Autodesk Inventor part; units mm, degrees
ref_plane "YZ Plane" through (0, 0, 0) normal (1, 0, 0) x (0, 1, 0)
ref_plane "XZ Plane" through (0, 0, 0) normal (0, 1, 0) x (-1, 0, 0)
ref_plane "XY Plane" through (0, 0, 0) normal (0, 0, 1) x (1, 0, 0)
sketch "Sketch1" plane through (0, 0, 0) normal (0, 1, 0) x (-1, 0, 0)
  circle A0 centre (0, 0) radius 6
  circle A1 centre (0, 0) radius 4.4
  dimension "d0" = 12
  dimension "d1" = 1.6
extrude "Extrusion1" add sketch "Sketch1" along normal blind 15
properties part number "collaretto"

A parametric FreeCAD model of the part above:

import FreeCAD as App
import Part
import Sketcher
Q = App.Units.Quantity

doc = App.newDocument("Part")
body = doc.addObject("PartDesign::Body", "Body")

sketch1 = body.newObject("Sketcher::SketchObject", "Sketch")
sketch1.AttachmentSupport = (doc.getObject("XZ_Plane"), [""])
sketch1.MapMode = "FlatFace"
sketch1.addGeometry([
    Part.Circle(App.Vector(0, 0, 0), App.Vector(0, 0, 1), 6),
    Part.Circle(App.Vector(0, 0, 0), App.Vector(0, 0, 1), 4.4),
], False)
sketch1.addConstraint([
    Sketcher.Constraint("Coincident", 0, 3, -1, 1),
    Sketcher.Constraint("Coincident", 1, 3, -1, 1),
    Sketcher.Constraint("Diameter", 0, Q("12 mm")),
    Sketcher.Constraint("Diameter", 1, Q("8.8 mm")),
])
pad1 = body.newObject("PartDesign::Pad", "Pad")
pad1.Profile = sketch1
pad1.Length = 15
pad1.Reversed = True

doc.recompute()
